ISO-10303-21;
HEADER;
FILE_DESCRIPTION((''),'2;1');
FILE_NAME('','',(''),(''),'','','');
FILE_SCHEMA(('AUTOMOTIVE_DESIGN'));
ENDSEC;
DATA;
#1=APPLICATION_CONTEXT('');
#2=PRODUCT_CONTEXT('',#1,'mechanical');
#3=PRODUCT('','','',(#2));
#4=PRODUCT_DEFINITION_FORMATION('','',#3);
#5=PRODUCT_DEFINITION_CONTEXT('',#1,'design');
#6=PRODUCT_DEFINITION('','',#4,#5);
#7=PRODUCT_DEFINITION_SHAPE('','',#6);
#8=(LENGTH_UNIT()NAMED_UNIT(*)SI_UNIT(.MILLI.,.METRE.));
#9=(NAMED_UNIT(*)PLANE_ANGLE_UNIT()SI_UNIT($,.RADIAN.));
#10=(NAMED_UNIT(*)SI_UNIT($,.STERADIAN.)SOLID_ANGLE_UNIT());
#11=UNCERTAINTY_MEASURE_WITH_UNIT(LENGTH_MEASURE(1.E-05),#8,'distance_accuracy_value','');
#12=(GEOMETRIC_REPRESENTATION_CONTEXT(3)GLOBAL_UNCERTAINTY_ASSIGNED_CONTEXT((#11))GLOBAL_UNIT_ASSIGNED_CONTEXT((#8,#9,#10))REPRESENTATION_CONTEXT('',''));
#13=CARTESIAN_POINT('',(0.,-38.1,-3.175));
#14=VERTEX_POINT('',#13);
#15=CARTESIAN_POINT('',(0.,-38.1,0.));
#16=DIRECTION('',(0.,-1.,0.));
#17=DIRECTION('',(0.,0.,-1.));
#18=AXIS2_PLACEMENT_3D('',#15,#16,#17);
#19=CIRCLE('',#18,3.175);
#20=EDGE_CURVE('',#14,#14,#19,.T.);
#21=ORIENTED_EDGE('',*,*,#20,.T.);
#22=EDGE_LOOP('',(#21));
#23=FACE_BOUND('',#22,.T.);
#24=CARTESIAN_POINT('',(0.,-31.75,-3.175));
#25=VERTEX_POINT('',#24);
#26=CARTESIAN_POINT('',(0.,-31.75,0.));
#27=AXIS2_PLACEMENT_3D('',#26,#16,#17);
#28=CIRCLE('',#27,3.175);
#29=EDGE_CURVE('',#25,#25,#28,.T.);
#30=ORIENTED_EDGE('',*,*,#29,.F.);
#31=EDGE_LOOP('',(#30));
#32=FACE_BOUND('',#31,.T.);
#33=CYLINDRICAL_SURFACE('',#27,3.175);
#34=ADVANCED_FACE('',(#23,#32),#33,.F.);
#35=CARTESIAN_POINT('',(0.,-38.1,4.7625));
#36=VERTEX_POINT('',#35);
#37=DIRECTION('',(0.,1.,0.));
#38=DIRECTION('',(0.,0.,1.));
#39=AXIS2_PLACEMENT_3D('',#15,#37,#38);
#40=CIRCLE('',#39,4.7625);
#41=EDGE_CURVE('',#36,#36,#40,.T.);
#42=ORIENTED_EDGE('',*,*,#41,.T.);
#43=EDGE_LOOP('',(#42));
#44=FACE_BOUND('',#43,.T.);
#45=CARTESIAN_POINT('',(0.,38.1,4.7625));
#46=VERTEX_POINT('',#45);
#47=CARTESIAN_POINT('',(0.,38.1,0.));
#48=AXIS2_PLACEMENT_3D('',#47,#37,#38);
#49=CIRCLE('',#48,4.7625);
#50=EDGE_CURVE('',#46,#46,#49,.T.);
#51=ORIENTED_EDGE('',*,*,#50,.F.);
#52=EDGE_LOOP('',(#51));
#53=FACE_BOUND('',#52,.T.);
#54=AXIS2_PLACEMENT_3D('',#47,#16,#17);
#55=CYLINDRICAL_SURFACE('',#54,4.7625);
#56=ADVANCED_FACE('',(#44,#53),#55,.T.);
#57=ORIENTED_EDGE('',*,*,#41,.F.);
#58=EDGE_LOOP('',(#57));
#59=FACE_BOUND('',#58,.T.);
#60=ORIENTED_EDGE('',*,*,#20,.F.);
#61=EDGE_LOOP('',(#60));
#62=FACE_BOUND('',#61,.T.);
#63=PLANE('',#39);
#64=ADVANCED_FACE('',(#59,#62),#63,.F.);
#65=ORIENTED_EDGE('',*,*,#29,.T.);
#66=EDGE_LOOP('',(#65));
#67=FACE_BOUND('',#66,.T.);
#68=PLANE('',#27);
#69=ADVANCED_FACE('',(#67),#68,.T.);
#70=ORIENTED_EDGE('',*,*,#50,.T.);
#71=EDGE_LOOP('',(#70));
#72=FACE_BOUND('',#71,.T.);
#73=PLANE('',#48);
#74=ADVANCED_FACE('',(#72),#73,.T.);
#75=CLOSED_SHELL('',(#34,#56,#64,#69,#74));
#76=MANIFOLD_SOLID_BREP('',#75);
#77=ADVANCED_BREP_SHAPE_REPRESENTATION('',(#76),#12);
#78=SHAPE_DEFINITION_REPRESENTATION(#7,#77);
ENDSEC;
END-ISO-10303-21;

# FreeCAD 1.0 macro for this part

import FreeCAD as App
import Part
import Sketcher
from FreeCAD import Vector
Q = App.Units.Quantity

doc = App.newDocument("Part")
body = doc.addObject("PartDesign::Body", "Body")

# Sketch on XZ plane
sketch1 = body.newObject("Sketcher::SketchObject", "Sketch")
sketch1.AttachmentSupport = (doc.getObject("XZ_Plane"), [""])
sketch1.MapMode = "FlatFace"
sketch1.addGeometry(Part.Circle(Vector(0, 0, 0), Vector(0, 0, 1), 4.8), False)
sketch1.addConstraint([
    Sketcher.Constraint("Coincident", 0, 3, -1, 1),
    Sketcher.Constraint("Diameter", 0, Q("0.375 in")),
])
pad1 = body.newObject("PartDesign::Pad", "Pad")
pad1.Profile = sketch1
pad1.Length = Q("3 in")
pad1.Midplane = True

# Sketch on XZ plane
sketch2 = body.newObject("Sketcher::SketchObject", "Sketch001")
sketch2.AttachmentSupport = (doc.getObject("XZ_Plane"), [""])
sketch2.MapMode = "FlatFace"
sketch2.AttachmentOffset = App.Placement(Vector(0, 0, 1.5 * 25.4), App.Rotation())
sketch2.addGeometry(Part.Circle(Vector(0, 0, 0), Vector(0, 0, 1), 3.2), False)
sketch2.addConstraint([
    Sketcher.Constraint("Coincident", 0, 3, -1, 1),
    Sketcher.Constraint("Diameter", 0, Q("0.25 in")),
])
pocket1 = body.newObject("PartDesign::Pocket", "Pocket")
pocket1.Profile = sketch2
pocket1.Length = Q("0.25 in")

doc.recompute()
